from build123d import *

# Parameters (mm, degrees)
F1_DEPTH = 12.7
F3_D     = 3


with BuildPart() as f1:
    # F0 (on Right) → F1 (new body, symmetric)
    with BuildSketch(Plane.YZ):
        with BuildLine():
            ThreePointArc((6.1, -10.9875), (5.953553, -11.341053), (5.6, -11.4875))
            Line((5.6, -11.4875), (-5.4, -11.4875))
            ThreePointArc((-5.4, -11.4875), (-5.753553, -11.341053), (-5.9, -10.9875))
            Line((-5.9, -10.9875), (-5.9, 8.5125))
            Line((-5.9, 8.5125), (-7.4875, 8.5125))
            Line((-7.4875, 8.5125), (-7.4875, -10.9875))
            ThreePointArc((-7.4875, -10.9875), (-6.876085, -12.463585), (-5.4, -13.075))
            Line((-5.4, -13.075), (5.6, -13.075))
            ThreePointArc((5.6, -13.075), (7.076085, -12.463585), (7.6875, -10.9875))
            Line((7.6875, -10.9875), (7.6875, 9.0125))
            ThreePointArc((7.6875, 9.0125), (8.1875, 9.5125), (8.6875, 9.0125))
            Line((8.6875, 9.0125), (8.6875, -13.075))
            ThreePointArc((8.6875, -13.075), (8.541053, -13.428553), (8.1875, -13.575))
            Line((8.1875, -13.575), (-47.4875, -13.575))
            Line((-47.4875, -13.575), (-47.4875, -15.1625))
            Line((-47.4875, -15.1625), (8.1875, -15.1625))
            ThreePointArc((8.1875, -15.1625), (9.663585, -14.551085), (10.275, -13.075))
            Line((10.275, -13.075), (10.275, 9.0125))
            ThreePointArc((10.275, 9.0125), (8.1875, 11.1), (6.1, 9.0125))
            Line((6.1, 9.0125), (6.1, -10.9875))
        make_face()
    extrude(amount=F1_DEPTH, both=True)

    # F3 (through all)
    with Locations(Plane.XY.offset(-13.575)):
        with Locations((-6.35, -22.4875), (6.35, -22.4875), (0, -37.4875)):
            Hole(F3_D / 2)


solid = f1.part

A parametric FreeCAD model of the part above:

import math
import FreeCAD as App
import Part
import Sketcher
from FreeCAD import Vector

doc = App.newDocument("Part")
body = doc.addObject("PartDesign::Body", "Body")

sketch1 = body.newObject("Sketcher::SketchObject", "Sketch")
sketch1.AttachmentSupport = (doc.getObject("YZ_Plane"), [""])
sketch1.MapMode = "FlatFace"
sketch1.addGeometry([
    Part.ArcOfCircle(Part.Circle(Vector(5.6, -11, 0), Vector(0, 0, 1), 0.5), math.radians(-90), math.radians(0)),
    Part.LineSegment(Vector(5.6, -11.5, 0), Vector(-5.4, -11.5, 0)),
    Part.ArcOfCircle(Part.Circle(Vector(-5.4, -11, 0), Vector(0, 0, 1), 0.5), math.radians(-180), math.radians(-90)),
    Part.LineSegment(Vector(-5.9, -11, 0), Vector(-5.9, 8.5, 0)),
    Part.LineSegment(Vector(-5.9, 8.5, 0), Vector(-7.5, 8.5, 0)),
    Part.LineSegment(Vector(-7.5, 8.5, 0), Vector(-7.5, -11, 0)),
    Part.ArcOfCircle(Part.Circle(Vector(-5.4, -11, 0), Vector(0, 0, 1), 2.1), math.radians(-180), math.radians(-90)),
    Part.LineSegment(Vector(-5.4, -13.1, 0), Vector(5.6, -13.1, 0)),
    Part.ArcOfCircle(Part.Circle(Vector(5.6, -11, 0), Vector(0, 0, 1), 2.1), math.radians(-90), math.radians(0)),
    Part.LineSegment(Vector(7.7, -11, 0), Vector(7.7, 9, 0)),
    Part.ArcOfCircle(Part.Circle(Vector(8.2, 9, 0), Vector(0, 0, 1), 0.5), math.radians(0), math.radians(180)),
    Part.LineSegment(Vector(8.7, 9, 0), Vector(8.7, -13.1, 0)),
    Part.ArcOfCircle(Part.Circle(Vector(8.2, -13.1, 0), Vector(0, 0, 1), 0.5), math.radians(-90), math.radians(0)),
    Part.LineSegment(Vector(8.2, -13.6, 0), Vector(-47.5, -13.6, 0)),
    Part.LineSegment(Vector(-47.5, -13.6, 0), Vector(-47.5, -15.2, 0)),
    Part.LineSegment(Vector(-47.5, -15.2, 0), Vector(8.2, -15.2, 0)),
    Part.ArcOfCircle(Part.Circle(Vector(8.2, -13.1, 0), Vector(0, 0, 1), 2.1), math.radians(-90), math.radians(0)),
    Part.LineSegment(Vector(10.3, -13.1, 0), Vector(10.3, 9, 0)),
    Part.ArcOfCircle(Part.Circle(Vector(8.2, 9, 0), Vector(0, 0, 1), 2.1), math.radians(0), math.radians(180)),
    Part.LineSegment(Vector(6.1, 9, 0), Vector(6.1, -11, 0)),
], False)
sketch1.addConstraint([
    Sketcher.Constraint("Coincident", 0, 1, 1, 1),
    Sketcher.Constraint("Coincident", 1, 2, 2, 2),
    Sketcher.Constraint("Coincident", 2, 1, 3, 1),
    Sketcher.Constraint("Coincident", 3, 2, 4, 1),
    Sketcher.Constraint("Coincident", 4, 2, 5, 1),
    Sketcher.Constraint("Tangent", 5, 2, 6, 1),
    Sketcher.Constraint("Tangent", 6, 2, 7, 1),
    Sketcher.Constraint("Tangent", 7, 2, 8, 1),
    Sketcher.Constraint("Tangent", 8, 2, 9, 1),
    Sketcher.Constraint("Tangent", 9, 2, 10, 2),
    Sketcher.Constraint("Tangent", 10, 1, 11, 1),
    Sketcher.Constraint("Coincident", 11, 2, 12, 2),
    Sketcher.Constraint("Coincident", 12, 1, 13, 1),
    Sketcher.Constraint("Coincident", 13, 2, 14, 1),
    Sketcher.Constraint("Coincident", 14, 2, 15, 1),
    Sketcher.Constraint("Tangent", 15, 2, 16, 1),
    Sketcher.Constraint("Tangent", 16, 2, 17, 1),
    Sketcher.Constraint("Tangent", 17, 2, 18, 1),
    Sketcher.Constraint("Tangent", 18, 2, 19, 1),
    Sketcher.Constraint("Coincident", 19, 2, 0, 2),
    Sketcher.Constraint("Horizontal", 1),
    Sketcher.Constraint("Vertical", 3),
    Sketcher.Constraint("Horizontal", 4),
    Sketcher.Constraint("Vertical", 5),
    Sketcher.Constraint("Horizontal", 7),
    Sketcher.Constraint("Vertical", 9),
    Sketcher.Constraint("Vertical", 11),
    Sketcher.Constraint("Horizontal", 13),
    Sketcher.Constraint("Vertical", 14),
    Sketcher.Constraint("Horizontal", 15),
    Sketcher.Constraint("Vertical", 17),
    Sketcher.Constraint("Vertical", 19),
    Sketcher.Constraint("Coincident", 6, 3, 2, 3),
    Sketcher.Constraint("Coincident", 8, 3, 0, 3),
    Sketcher.Constraint("Coincident", 16, 3, 12, 3),
    Sketcher.Constraint("Coincident", 18, 3, 10, 3),
    Sketcher.Constraint("Equal", 0, 2),
    Sketcher.Constraint("Equal", 2, 10),
    Sketcher.Constraint("Equal", 10, 12),
    Sketcher.Constraint("Horizontal", 8, 3, 2, 1),
    Sketcher.Constraint("Horizontal", 16, 3, 6, 2),
    Sketcher.Constraint("Horizontal", 7, 2, 11, 2),
    Sketcher.Constraint("Horizontal", 8, 2, 19, 2),
    Sketcher.Constraint("Vertical", 8, 3, 0, 1),
    Sketcher.Constraint("Vertical", 6, 3, 1, 2),
    Sketcher.Constraint("Vertical", 18, 3, 12, 1),
    Sketcher.Constraint("Radius", 0, 0.500001),
    Sketcher.Constraint("DistanceX", 1, 2, 1, 1, 11.0),
    Sketcher.Constraint("DistanceY", 9, 1, 9, 2, 20.0),
    Sketcher.Constraint("DistanceY", 3, 1, 3, 2, 19.5),
    Sketcher.Constraint("DistanceX", 13, 2, 5, 2, 40.0),
    Sketcher.Constraint("DistanceX", -1, 1, 0, 3, 5.599999),
    Sketcher.Constraint("Radius", 6, 2.087501),
    Sketcher.Constraint("DistanceY", 12, 3, -1, 1, 13.074999),
])
pad1 = body.newObject("PartDesign::Pad", "Pad")
pad1.Profile = sketch1
pad1.Length = 25.4
pad1.Midplane = True

sketch2 = body.newObject("Sketcher::SketchObject", "Sketch001")
sketch2.AttachmentSupport = (doc.getObject("XY_Plane"), [""])
sketch2.MapMode = "FlatFace"
sketch2.AttachmentOffset = App.Placement(Vector(0, 0, -13.575), App.Rotation())
sketch2.addGeometry([
    Part.Circle(Vector(-6.3, -22.5, 0), Vector(0, 0, 1), 1.5),
    Part.Circle(Vector(6.3, -22.5, 0), Vector(0, 0, 1), 1.5),
    Part.Circle(Vector(0, -37.5, 0), Vector(0, 0, 1), 1.5),
], False)
sketch2.addConstraint([
    Sketcher.Constraint("Equal", 0, 1),
    Sketcher.Constraint("Equal", 1, 2),
    Sketcher.Constraint("Symmetric", 0, 3, 1, 3, -2),
    Sketcher.Constraint("PointOnObject", 2, 3, -2),
    Sketcher.Constraint("Diameter", 0, 3.0),
    Sketcher.Constraint("DistanceY", 2, 3, 0, 3, 15.0),
    Sketcher.Constraint("DistanceX", 0, 3, 1, 3, 12.7),
    Sketcher.Constraint("DistanceY", 0, 3, -1, 1, 22.4875),
])
doc.recompute()
hole = body.newObject("PartDesign::Hole", "Hole")
hole.Profile = sketch2
hole.ThreadType = "None"
hole.Diameter = 3
hole.DepthType = "ThroughAll"

doc.recompute()
